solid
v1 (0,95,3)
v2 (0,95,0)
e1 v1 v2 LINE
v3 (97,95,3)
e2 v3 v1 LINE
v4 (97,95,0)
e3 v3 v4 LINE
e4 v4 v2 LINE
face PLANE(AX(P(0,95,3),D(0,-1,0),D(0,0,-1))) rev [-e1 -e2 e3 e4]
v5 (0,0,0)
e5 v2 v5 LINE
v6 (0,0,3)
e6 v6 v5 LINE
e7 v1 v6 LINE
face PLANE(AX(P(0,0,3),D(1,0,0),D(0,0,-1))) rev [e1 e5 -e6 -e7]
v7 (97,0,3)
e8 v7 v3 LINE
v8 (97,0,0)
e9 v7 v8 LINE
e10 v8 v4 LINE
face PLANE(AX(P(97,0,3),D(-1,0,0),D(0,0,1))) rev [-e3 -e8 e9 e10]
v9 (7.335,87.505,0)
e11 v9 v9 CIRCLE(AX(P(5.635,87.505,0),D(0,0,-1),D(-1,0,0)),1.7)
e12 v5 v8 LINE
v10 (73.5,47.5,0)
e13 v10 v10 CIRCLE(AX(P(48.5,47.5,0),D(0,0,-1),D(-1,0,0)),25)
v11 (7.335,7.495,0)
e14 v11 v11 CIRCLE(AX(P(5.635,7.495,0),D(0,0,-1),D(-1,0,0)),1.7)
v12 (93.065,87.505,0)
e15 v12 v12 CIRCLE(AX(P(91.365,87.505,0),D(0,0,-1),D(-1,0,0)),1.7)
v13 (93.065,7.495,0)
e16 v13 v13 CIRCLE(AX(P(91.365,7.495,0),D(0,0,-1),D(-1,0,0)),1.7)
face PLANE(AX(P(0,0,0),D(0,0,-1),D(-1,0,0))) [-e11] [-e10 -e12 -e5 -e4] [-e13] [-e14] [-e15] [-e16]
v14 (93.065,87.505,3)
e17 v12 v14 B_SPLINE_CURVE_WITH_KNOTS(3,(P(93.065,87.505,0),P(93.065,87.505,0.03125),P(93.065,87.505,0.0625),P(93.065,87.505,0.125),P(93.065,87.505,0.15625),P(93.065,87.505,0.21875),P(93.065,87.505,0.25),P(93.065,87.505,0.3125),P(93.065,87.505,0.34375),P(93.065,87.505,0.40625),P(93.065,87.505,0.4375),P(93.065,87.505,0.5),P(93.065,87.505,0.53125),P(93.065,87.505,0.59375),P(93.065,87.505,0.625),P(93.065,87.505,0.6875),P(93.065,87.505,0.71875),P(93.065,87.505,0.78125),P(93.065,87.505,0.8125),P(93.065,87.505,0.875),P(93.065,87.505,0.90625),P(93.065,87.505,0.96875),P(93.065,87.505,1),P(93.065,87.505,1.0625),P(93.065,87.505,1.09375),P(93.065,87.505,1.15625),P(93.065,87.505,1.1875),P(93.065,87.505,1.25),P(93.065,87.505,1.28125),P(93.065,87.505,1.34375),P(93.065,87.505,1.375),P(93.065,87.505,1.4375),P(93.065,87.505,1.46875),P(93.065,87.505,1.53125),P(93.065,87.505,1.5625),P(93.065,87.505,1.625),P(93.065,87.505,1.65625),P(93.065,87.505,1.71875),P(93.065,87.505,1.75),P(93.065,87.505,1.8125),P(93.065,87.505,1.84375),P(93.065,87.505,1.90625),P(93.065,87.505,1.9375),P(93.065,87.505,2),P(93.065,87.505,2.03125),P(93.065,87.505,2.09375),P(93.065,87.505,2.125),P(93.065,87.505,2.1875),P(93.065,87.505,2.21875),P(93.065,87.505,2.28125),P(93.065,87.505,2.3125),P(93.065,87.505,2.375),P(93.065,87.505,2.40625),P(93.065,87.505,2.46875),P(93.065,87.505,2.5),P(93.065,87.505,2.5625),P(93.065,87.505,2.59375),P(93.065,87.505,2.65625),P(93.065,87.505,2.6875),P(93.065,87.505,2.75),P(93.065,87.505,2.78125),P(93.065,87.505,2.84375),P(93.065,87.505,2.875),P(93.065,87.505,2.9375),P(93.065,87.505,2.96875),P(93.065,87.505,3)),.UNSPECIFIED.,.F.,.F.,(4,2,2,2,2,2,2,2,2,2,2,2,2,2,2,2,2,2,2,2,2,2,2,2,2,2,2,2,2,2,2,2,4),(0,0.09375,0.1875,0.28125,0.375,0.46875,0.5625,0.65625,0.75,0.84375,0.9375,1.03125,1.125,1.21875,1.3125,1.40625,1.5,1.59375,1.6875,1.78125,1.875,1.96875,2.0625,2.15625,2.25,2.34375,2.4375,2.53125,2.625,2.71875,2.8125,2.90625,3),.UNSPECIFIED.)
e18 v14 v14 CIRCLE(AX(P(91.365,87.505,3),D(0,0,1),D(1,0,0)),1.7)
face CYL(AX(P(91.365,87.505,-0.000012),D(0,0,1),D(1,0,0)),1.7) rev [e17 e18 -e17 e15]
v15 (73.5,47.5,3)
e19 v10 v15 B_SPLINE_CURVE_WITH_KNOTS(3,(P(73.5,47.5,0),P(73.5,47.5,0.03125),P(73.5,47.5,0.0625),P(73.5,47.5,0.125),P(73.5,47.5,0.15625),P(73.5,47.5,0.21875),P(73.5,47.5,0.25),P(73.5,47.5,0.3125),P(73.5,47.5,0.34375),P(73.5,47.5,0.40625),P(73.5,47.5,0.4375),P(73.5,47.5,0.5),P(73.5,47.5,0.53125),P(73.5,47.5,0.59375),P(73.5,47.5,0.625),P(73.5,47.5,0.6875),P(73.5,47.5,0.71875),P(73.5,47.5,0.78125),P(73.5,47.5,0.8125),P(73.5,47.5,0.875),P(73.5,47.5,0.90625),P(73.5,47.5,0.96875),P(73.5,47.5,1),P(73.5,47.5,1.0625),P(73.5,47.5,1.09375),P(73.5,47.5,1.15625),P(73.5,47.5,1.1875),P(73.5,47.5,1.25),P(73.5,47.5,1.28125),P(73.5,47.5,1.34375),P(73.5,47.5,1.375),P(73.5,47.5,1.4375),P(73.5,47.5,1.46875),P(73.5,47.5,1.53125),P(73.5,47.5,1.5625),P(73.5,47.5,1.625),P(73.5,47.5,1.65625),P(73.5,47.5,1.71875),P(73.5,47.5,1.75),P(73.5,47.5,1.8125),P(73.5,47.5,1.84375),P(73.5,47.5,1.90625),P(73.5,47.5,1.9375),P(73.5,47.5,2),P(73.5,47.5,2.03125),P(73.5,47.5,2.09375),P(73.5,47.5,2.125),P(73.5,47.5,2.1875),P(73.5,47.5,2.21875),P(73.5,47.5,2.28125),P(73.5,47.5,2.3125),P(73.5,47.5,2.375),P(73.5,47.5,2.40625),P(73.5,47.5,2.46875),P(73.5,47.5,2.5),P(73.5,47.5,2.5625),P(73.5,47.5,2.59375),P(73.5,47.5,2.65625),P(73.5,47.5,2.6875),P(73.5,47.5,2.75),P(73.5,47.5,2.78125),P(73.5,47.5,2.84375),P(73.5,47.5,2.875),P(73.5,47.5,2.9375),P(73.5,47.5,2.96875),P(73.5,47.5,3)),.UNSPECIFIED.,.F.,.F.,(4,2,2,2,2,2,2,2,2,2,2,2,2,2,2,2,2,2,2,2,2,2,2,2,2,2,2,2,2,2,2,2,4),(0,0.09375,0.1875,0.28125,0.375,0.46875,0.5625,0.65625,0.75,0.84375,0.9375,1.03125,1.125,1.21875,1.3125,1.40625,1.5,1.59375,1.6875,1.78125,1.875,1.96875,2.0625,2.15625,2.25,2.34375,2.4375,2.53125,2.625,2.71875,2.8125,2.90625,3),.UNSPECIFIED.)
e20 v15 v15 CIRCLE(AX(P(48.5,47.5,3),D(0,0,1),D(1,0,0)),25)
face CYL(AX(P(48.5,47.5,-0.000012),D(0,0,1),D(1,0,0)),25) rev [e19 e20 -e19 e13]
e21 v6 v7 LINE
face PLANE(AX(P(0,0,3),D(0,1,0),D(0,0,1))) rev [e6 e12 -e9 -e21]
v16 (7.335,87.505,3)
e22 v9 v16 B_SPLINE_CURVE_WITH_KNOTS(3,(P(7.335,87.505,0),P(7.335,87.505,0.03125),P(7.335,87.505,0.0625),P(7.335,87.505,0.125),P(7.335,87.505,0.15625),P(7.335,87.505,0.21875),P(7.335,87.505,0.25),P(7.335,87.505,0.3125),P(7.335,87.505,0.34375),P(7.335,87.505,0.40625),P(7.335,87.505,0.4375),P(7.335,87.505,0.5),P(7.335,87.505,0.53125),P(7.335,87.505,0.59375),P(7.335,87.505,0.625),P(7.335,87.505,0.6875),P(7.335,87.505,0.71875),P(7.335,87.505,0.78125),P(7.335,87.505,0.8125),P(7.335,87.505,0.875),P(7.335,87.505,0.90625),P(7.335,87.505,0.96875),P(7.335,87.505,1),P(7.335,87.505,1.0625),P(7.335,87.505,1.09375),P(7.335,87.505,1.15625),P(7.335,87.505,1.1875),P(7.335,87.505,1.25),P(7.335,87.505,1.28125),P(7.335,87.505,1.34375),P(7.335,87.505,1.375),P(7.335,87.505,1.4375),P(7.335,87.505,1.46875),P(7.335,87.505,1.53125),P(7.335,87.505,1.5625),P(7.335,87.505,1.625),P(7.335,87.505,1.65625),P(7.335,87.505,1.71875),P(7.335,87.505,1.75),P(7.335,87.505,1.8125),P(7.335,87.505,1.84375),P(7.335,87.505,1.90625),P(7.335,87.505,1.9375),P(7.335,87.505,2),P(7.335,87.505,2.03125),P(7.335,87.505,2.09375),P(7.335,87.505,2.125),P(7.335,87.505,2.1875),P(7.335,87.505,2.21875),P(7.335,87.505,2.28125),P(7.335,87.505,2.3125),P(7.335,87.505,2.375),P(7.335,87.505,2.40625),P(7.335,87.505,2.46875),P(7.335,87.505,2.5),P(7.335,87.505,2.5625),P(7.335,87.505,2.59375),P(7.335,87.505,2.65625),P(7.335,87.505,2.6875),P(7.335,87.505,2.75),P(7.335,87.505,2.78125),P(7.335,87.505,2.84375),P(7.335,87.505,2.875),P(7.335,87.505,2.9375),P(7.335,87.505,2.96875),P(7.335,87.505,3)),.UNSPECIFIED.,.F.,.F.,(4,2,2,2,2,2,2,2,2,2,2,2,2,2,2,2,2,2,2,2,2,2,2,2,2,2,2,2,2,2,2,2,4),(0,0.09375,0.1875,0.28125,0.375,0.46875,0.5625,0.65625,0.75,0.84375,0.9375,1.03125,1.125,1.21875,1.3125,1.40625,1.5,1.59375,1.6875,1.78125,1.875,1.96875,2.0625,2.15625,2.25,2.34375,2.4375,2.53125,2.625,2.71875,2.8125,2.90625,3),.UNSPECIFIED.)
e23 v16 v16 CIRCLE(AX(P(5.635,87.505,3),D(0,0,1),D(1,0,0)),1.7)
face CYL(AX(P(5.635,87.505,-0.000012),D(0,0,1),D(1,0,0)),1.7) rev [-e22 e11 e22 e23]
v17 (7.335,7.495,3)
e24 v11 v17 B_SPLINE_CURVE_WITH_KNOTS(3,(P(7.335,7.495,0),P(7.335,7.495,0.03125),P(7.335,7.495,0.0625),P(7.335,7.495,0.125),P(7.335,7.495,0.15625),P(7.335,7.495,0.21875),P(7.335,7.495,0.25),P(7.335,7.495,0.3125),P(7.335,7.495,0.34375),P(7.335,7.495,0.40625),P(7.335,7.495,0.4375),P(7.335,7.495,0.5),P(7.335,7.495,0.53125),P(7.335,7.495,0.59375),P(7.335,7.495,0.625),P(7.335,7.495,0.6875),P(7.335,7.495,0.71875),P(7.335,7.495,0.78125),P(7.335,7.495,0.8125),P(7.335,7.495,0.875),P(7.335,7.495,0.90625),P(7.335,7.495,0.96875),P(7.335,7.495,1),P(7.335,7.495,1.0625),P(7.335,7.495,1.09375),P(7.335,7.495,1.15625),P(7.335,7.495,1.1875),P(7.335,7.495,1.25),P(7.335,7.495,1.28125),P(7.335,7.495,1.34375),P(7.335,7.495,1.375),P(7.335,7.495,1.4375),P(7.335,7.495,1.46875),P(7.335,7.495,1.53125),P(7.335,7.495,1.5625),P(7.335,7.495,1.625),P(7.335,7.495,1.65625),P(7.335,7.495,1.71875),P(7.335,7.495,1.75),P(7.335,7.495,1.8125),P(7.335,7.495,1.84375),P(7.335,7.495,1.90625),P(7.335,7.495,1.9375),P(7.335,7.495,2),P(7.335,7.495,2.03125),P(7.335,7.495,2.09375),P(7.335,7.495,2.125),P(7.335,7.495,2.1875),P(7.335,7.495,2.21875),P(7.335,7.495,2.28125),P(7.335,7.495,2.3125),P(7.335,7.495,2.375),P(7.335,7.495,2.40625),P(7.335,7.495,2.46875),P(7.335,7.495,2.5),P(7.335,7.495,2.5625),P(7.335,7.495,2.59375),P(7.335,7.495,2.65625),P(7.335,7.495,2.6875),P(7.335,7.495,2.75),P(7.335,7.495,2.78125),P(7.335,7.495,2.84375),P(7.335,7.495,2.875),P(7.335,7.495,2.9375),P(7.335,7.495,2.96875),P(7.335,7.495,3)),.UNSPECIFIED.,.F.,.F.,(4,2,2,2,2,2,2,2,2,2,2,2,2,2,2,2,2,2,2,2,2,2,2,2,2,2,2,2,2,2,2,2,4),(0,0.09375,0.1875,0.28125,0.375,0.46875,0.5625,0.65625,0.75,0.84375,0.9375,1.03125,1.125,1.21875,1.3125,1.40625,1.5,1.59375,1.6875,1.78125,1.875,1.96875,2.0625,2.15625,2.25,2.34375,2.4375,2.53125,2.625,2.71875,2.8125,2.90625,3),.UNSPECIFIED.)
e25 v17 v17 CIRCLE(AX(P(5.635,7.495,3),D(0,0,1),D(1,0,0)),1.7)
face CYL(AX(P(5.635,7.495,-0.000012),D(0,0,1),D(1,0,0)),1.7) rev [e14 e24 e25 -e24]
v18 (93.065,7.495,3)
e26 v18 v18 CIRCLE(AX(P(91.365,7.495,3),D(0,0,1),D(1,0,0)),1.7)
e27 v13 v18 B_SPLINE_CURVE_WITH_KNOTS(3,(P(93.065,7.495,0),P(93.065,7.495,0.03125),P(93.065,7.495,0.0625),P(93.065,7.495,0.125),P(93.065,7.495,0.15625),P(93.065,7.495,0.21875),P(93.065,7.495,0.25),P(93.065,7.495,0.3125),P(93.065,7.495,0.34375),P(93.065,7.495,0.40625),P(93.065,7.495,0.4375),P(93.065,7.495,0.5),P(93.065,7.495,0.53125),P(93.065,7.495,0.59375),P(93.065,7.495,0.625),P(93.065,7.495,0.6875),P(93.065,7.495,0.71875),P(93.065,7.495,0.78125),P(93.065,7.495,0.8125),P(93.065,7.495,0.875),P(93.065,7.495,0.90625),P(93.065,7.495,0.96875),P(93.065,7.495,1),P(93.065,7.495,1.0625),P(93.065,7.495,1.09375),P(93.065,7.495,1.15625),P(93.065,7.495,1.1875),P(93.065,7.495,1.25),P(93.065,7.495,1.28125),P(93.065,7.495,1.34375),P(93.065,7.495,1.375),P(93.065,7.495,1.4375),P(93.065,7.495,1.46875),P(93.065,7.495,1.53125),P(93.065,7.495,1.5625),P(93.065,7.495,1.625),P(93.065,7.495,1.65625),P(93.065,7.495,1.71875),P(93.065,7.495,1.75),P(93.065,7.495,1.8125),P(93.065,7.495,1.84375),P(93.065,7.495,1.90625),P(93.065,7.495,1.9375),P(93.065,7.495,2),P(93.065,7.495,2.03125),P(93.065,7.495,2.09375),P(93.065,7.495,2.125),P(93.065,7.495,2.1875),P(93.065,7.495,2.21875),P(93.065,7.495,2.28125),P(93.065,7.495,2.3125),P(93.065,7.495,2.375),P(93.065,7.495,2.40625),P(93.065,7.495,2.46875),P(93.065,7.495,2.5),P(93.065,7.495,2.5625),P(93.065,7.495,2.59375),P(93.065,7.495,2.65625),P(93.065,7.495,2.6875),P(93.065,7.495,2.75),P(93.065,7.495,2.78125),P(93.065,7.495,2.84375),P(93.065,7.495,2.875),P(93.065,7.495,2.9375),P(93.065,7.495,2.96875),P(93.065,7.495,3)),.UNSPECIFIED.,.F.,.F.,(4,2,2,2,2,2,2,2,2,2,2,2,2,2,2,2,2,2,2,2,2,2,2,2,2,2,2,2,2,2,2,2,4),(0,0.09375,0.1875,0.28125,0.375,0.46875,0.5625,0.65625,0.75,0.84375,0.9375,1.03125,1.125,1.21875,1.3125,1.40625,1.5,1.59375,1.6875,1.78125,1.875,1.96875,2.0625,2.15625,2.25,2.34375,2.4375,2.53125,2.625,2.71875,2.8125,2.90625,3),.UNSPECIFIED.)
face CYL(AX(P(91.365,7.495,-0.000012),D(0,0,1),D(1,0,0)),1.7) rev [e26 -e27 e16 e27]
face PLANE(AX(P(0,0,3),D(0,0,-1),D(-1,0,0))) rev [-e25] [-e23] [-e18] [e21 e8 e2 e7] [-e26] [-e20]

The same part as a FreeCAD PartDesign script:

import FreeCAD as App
import Part
import Sketcher
from FreeCAD import Vector


def add_polygon(sketch, points):
    """Adds a closed chain of lines whose ends are joined by coincident constraints."""
    first, n = sketch.GeometryCount, len(points)
    for a, b in zip(points, points[1:] + points[:1]):
        sketch.addGeometry(Part.LineSegment(App.Vector(*a, 0), App.Vector(*b, 0)), False)
    for i in range(n):
        sketch.addConstraint(Sketcher.Constraint("Coincident", first + i, 2, first + (i + 1) % n, 1))

doc = App.newDocument("Part")
body = doc.addObject("PartDesign::Body", "Body")

# Sketch on XY plane
sketch1 = body.newObject("Sketcher::SketchObject", "Sketch")
sketch1.AttachmentSupport = (doc.getObject("XY_Plane"), [""])
sketch1.MapMode = "FlatFace"
add_polygon(sketch1, [(0, 95), (0, 0), (97, 0), (97, 95)])  # lines 0-3
sketch1.addConstraint([
    Sketcher.Constraint("Vertical", 0),
    Sketcher.Constraint("Horizontal", 1),
    Sketcher.Constraint("Vertical", 2),
    Sketcher.Constraint("Horizontal", 3),
    Sketcher.Constraint("Coincident", 0, 2, -1, 1),
    Sketcher.Constraint("DistanceX", 1, 1, 1, 2, 97.0),
    Sketcher.Constraint("DistanceY", 0, 2, 0, 1, 95.0),
])
pad1 = body.newObject("PartDesign::Pad", "Pad")
pad1.Profile = sketch1
pad1.Length = 3

# Sketch on XY plane
sketch2 = body.newObject("Sketcher::SketchObject", "Sketch001")
sketch2.AttachmentSupport = (doc.getObject("XY_Plane"), [""])
sketch2.MapMode = "FlatFace"
sketch2.addGeometry([
    Part.Circle(Vector(5.6, 7.5, 0), Vector(0, 0, 1), 1.7),  # 0
    Part.Circle(Vector(91.4, 7.5, 0), Vector(0, 0, 1), 1.7),  # 1
    Part.Circle(Vector(5.6, 87.5, 0), Vector(0, 0, 1), 1.7),  # 2
    Part.Circle(Vector(91.4, 87.5, 0), Vector(0, 0, 1), 1.7),  # 3
    Part.Circle(Vector(48.5, 47.5, 0), Vector(0, 0, 1), 25),  # 4
], False)
sketch2.addConstraint([
    Sketcher.Constraint("Equal", 0, 1),
    Sketcher.Constraint("Equal", 1, 2),
    Sketcher.Constraint("Equal", 2, 3),
    Sketcher.Constraint("Horizontal", 0, 3, 1, 3),
    Sketcher.Constraint("Horizontal", 2, 3, 3, 3),
    Sketcher.Constraint("Vertical", 0, 3, 2, 3),
    Sketcher.Constraint("Vertical", 1, 3, 3, 3),
    Sketcher.Constraint("Diameter", 4, 50.0),
    Sketcher.Constraint("Diameter", 0, 3.4),
    Sketcher.Constraint("DistanceX", -1, 1, 4, 3, 48.5),
    Sketcher.Constraint("DistanceY", -1, 1, 4, 3, 47.5),
    Sketcher.Constraint("DistanceX", 0, 3, 1, 3, 85.73),
    Sketcher.Constraint("DistanceY", 0, 3, 2, 3, 80.01),
    Sketcher.Constraint("DistanceX", -1, 1, 0, 3, 5.635),
    Sketcher.Constraint("DistanceY", -1, 1, 0, 3, 7.495),
])
pocket1 = body.newObject("PartDesign::Pocket", "Pocket")
pocket1.Profile = sketch2
pocket1.Type = "ThroughAll"
pocket1.Midplane = True

doc.recompute()
